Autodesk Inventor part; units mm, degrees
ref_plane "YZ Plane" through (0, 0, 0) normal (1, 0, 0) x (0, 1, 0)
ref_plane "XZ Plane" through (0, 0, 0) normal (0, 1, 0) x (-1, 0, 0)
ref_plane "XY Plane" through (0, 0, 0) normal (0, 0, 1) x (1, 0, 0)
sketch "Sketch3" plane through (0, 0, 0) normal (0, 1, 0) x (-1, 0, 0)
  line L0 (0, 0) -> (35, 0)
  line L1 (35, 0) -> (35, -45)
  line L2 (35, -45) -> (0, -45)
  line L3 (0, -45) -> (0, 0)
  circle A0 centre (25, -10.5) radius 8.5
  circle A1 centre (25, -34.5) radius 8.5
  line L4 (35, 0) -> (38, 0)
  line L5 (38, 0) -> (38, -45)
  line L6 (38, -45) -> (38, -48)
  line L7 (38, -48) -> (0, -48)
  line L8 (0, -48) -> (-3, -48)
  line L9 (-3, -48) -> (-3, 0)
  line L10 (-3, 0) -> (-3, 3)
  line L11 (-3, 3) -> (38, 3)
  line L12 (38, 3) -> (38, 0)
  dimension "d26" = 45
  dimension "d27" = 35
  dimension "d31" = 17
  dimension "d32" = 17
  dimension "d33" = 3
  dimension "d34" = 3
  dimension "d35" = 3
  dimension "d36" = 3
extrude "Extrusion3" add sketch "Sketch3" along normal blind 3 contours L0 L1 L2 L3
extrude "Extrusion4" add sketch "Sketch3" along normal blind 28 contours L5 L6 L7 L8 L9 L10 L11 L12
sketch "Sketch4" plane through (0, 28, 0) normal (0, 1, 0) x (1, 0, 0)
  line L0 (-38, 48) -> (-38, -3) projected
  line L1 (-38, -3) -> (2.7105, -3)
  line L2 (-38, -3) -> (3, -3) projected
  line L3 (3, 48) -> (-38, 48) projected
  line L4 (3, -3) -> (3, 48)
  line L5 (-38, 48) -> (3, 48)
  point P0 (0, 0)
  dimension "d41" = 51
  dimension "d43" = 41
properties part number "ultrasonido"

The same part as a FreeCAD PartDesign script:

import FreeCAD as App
import Part
import Sketcher

V = App.Vector

doc = App.newDocument("Part")
body = doc.addObject("PartDesign::Body", "Body")

sketch1 = body.newObject("Sketcher::SketchObject", "Sketch")
sketch1.AttachmentSupport = (doc.getObject("XZ_Plane"), [""])
sketch1.MapMode = "FlatFace"
sketch1.addGeometry(Part.LineSegment(V(-35, 0, 0), V(0, 0, 0)), False)
sketch1.addGeometry(Part.LineSegment(V(0, 0, 0), V(0, -45, 0)), False)
sketch1.addGeometry(Part.LineSegment(V(0, -45, 0), V(-35, -45, 0)), False)
sketch1.addGeometry(Part.LineSegment(V(-35, -45, 0), V(-35, 0, 0)), False)
sketch1.addGeometry(Part.Circle(V(-25, -34, 0), V(0, 0, 1), 8), False)
sketch1.addGeometry(Part.Circle(V(-25, -10, 0), V(0, 0, 1), 8), False)
sketch1.addConstraint(Sketcher.Constraint("Coincident", 0, 2, 1, 1))
sketch1.addConstraint(Sketcher.Constraint("Coincident", 1, 2, 2, 1))
sketch1.addConstraint(Sketcher.Constraint("Coincident", 2, 2, 3, 1))
sketch1.addConstraint(Sketcher.Constraint("Coincident", 3, 2, 0, 1))
sketch1.addConstraint(Sketcher.Constraint("Horizontal", 0))
sketch1.addConstraint(Sketcher.Constraint("Vertical", 1))
sketch1.addConstraint(Sketcher.Constraint("Horizontal", 2))
sketch1.addConstraint(Sketcher.Constraint("Vertical", 3))
sketch1.addConstraint(Sketcher.Constraint("Coincident", 0, 2, -1, 1))
sketch1.addConstraint(Sketcher.Constraint("Equal", 4, 5))
sketch1.addConstraint(Sketcher.Constraint("Vertical", 4, 3, 5, 3))
sketch1.addConstraint(Sketcher.Constraint("Diameter", 4, 17.0))
sketch1.addConstraint(Sketcher.Constraint("DistanceX", 0, 1, 0, 2, 35.0))
sketch1.addConstraint(Sketcher.Constraint("DistanceY", 1, 2, 1, 1, 45.0))
sketch1.addConstraint(Sketcher.Constraint("DistanceX", 4, 3, -1, 1, 25.0))
sketch1.addConstraint(Sketcher.Constraint("DistanceY", 4, 3, 5, 3, 24.0))
sketch1.addConstraint(Sketcher.Constraint("DistanceY", 4, 3, -1, 1, 34.5))
pad1 = body.newObject("PartDesign::Pad", "Pad")
pad1.Profile = sketch1
pad1.Length = 3
pad1.Reversed = True

sketch2 = body.newObject("Sketcher::SketchObject", "Sketch001")
sketch2.AttachmentSupport = (doc.getObject("XZ_Plane"), [""])
sketch2.MapMode = "FlatFace"
sketch2.addGeometry(Part.LineSegment(V(-38, -48, 0), V(-38, 0, 0)), False)
sketch2.addGeometry(Part.LineSegment(V(-38, 0, 0), V(-38, 3, 0)), False)
sketch2.addGeometry(Part.LineSegment(V(-38, 3, 0), V(3, 3, 0)), False)
sketch2.addGeometry(Part.LineSegment(V(3, 3, 0), V(3, -48, 0)), False)
sketch2.addGeometry(Part.LineSegment(V(3, -48, 0), V(-38, -48, 0)), False)
sketch2.addGeometry(Part.LineSegment(V(0, -45, 0), V(0, 0, 0)), False)
sketch2.addGeometry(Part.LineSegment(V(0, 0, 0), V(-35, 0, 0)), False)
sketch2.addGeometry(Part.LineSegment(V(-35, 0, 0), V(-35, -45, 0)), False)
sketch2.addGeometry(Part.LineSegment(V(-35, -45, 0), V(0, -45, 0)), False)
sketch2.addConstraint(Sketcher.Constraint("Coincident", 0, 2, 1, 1))
sketch2.addConstraint(Sketcher.Constraint("Coincident", 1, 2, 2, 1))
sketch2.addConstraint(Sketcher.Constraint("Coincident", 2, 2, 3, 1))
sketch2.addConstraint(Sketcher.Constraint("Coincident", 3, 2, 4, 1))
sketch2.addConstraint(Sketcher.Constraint("Coincident", 4, 2, 0, 1))
sketch2.addConstraint(Sketcher.Constraint("Coincident", 5, 2, 6, 1))
sketch2.addConstraint(Sketcher.Constraint("Coincident", 6, 2, 7, 1))
sketch2.addConstraint(Sketcher.Constraint("Coincident", 7, 2, 8, 1))
sketch2.addConstraint(Sketcher.Constraint("Coincident", 8, 2, 5, 1))
sketch2.addConstraint(Sketcher.Constraint("Vertical", 0))
sketch2.addConstraint(Sketcher.Constraint("Vertical", 1))
sketch2.addConstraint(Sketcher.Constraint("Horizontal", 2))
sketch2.addConstraint(Sketcher.Constraint("Vertical", 3))
sketch2.addConstraint(Sketcher.Constraint("Horizontal", 4))
sketch2.addConstraint(Sketcher.Constraint("Vertical", 5))
sketch2.addConstraint(Sketcher.Constraint("Horizontal", 6))
sketch2.addConstraint(Sketcher.Constraint("Vertical", 7))
sketch2.addConstraint(Sketcher.Constraint("Horizontal", 8))
sketch2.addConstraint(Sketcher.Constraint("Coincident", 5, 2, -1, 1))
sketch2.addConstraint(Sketcher.Constraint("PointOnObject", 0, 2, -1))
sketch2.addConstraint(Sketcher.Constraint("DistanceX", 6, 2, 6, 1, 35.0))
sketch2.addConstraint(Sketcher.Constraint("DistanceY", 1, 1, 1, 2, 3.0))
sketch2.addConstraint(Sketcher.Constraint("DistanceY", 5, 1, 5, 2, 45.0))
sketch2.addConstraint(Sketcher.Constraint("DistanceX", -1, 1, 2, 2, 3.0))
sketch2.addConstraint(Sketcher.Constraint("DistanceX", 0, 2, 6, 2, 3.0))
sketch2.addConstraint(Sketcher.Constraint("DistanceY", 4, 2, 7, 2, 3.0))
pad2 = body.newObject("PartDesign::Pad", "Pad001")
pad2.Profile = sketch2
pad2.Length = 28
pad2.Reversed = True

doc.recompute()
